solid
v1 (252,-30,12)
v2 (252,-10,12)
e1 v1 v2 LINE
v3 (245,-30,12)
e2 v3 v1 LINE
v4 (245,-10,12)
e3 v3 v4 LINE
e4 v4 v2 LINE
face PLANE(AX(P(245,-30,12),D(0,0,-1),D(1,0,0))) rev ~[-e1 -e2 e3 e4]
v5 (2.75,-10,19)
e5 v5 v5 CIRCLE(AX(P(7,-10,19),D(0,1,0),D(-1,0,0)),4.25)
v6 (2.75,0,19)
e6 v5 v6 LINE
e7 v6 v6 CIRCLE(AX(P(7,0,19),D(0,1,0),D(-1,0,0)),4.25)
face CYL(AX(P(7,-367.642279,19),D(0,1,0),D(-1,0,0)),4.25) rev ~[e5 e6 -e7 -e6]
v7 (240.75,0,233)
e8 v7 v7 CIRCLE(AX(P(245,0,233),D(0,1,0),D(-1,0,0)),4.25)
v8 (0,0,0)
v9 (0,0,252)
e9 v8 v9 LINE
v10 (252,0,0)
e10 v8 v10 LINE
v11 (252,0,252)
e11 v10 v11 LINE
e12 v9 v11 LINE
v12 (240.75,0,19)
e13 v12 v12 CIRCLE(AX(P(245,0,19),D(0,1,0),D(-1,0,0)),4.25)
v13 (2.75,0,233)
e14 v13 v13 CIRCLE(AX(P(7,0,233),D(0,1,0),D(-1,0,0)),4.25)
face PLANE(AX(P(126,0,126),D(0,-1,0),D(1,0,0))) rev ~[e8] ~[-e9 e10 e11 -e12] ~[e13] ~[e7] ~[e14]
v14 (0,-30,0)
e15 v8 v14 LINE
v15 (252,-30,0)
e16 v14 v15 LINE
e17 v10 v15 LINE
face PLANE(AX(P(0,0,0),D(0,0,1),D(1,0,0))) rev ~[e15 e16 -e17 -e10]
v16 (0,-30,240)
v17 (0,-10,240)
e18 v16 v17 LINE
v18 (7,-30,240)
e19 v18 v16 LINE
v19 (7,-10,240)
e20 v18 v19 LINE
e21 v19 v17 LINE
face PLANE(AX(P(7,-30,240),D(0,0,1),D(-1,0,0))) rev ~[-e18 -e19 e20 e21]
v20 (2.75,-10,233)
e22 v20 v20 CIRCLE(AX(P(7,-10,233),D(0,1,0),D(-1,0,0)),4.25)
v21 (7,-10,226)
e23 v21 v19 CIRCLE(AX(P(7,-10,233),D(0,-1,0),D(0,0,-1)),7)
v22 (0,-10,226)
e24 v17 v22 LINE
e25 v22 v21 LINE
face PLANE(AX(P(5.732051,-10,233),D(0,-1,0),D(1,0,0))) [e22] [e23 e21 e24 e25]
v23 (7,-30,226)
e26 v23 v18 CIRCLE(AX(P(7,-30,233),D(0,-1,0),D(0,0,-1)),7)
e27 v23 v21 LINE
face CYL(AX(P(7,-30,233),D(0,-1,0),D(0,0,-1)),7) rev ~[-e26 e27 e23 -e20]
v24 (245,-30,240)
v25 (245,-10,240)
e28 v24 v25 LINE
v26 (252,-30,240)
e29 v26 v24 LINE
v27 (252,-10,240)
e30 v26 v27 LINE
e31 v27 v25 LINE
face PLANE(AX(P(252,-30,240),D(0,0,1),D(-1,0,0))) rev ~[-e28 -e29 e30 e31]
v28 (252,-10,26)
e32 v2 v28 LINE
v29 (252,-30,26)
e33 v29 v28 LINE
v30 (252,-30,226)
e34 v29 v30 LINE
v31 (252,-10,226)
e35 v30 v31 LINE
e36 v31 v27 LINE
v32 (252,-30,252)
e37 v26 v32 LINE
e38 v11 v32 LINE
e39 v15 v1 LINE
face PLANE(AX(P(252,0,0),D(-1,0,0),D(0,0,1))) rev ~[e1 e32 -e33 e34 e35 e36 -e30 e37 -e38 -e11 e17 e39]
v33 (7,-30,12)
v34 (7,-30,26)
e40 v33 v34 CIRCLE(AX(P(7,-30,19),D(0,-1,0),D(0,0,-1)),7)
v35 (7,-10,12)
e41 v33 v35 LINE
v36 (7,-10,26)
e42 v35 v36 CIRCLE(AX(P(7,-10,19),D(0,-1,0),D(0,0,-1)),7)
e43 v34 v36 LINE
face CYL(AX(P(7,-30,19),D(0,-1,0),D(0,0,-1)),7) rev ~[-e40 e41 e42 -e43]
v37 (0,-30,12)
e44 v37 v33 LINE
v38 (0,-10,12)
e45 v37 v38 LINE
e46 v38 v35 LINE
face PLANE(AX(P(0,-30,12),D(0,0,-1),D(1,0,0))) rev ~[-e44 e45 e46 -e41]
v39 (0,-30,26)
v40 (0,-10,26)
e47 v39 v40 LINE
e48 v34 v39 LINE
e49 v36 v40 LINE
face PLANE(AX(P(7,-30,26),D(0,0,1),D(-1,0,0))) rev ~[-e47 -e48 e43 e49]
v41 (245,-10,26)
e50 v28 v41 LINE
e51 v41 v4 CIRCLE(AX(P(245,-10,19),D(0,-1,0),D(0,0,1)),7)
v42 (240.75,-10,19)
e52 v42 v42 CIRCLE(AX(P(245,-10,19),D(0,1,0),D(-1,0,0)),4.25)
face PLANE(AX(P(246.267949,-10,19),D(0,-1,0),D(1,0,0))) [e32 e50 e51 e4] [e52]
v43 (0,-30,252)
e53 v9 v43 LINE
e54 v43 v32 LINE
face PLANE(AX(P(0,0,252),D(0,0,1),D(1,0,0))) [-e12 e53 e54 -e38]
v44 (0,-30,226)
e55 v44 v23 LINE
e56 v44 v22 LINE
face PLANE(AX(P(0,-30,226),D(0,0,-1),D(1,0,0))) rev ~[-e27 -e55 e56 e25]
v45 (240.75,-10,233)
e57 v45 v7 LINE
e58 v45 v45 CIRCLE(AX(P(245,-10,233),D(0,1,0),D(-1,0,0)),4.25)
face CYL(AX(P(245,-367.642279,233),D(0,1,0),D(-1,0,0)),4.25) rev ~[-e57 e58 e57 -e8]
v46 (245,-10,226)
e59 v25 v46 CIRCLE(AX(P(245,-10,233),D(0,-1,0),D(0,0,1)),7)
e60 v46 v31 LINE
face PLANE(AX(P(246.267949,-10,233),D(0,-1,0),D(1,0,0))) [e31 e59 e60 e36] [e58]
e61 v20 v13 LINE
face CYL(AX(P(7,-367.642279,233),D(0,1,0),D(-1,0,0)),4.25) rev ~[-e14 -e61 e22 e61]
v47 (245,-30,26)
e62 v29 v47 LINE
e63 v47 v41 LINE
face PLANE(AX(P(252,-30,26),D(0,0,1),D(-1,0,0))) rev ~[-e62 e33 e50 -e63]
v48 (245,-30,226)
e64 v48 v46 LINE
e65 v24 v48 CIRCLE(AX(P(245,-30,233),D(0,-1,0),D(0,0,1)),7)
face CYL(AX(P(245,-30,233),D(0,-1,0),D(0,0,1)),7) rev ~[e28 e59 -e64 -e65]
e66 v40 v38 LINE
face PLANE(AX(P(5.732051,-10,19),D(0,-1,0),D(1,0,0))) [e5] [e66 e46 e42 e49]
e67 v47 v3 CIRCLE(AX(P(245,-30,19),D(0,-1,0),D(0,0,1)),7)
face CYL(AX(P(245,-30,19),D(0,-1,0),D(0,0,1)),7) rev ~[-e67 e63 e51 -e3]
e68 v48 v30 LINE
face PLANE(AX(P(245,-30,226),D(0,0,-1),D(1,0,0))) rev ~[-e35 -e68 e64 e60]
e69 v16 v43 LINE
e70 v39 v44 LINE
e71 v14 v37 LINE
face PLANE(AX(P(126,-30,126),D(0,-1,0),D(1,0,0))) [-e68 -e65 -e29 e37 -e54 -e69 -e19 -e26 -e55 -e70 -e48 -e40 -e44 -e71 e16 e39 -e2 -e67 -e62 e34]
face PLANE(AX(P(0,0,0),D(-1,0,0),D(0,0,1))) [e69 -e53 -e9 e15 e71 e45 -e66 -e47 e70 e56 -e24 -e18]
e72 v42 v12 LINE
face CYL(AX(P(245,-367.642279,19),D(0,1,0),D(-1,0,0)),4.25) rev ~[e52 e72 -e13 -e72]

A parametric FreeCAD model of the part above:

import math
import FreeCAD as App
import Part
import Sketcher
from FreeCAD import Vector

doc = App.newDocument("Part")
body = doc.addObject("PartDesign::Body", "Body")

# Sketch on XZ plane
sketch1 = doc.addObject("Sketcher::SketchObject", "Sketch")
body.addObject(sketch1)
sketch1.AttachmentSupport = (doc.XZ_Plane, [""])
sketch1.MapMode = "FlatFace"
sketch1.addGeometry(Part.LineSegment(Vector(0, 252, 0), Vector(0, 0, 0)), False)
sketch1.addGeometry(Part.LineSegment(Vector(0, 0, 0), Vector(252, 0, 0)), False)
sketch1.addGeometry(Part.LineSegment(Vector(252, 0, 0), Vector(252, 252, 0)), False)
sketch1.addGeometry(Part.LineSegment(Vector(252, 252, 0), Vector(0, 252, 0)), False)
sketch1.addConstraint(Sketcher.Constraint("Coincident", 0, 2, 1, 1))
sketch1.addConstraint(Sketcher.Constraint("Coincident", 1, 2, 2, 1))
sketch1.addConstraint(Sketcher.Constraint("Coincident", 2, 2, 3, 1))
sketch1.addConstraint(Sketcher.Constraint("Coincident", 3, 2, 0, 1))
sketch1.addConstraint(Sketcher.Constraint("Vertical", 0))
sketch1.addConstraint(Sketcher.Constraint("Horizontal", 1))
sketch1.addConstraint(Sketcher.Constraint("Vertical", 2))
sketch1.addConstraint(Sketcher.Constraint("Horizontal", 3))
sketch1.addConstraint(Sketcher.Constraint("Coincident", 0, 2, -1, 1))
sketch1.addConstraint(Sketcher.Constraint("Equal", 3, 0))
sketch1.addConstraint(Sketcher.Constraint("DistanceX", 1, 1, 1, 2, 252.0))
pad1 = doc.addObject("PartDesign::Pad", "Pad")
body.addObject(pad1)
pad1.Profile = sketch1
pad1.Length = 30

# Sketch on XZ plane
sketch2 = doc.addObject("Sketcher::SketchObject", "Sketch001")
body.addObject(sketch2)
sketch2.AttachmentSupport = (doc.XZ_Plane, [""])
sketch2.MapMode = "FlatFace"
sketch2.AttachmentOffset = App.Placement(Vector(0, 0, 30), App.Rotation())
sketch2.addGeometry(Part.LineSegment(Vector(7, 26, 0), Vector(0, 26, 0)), False)
sketch2.addGeometry(Part.LineSegment(Vector(0, 26, 0), Vector(0, 12, 0)), False)
sketch2.addGeometry(Part.LineSegment(Vector(0, 12, 0), Vector(7, 12, 0)), False)
sketch2.addGeometry(Part.ArcOfCircle(Part.Circle(Vector(7, 19, 0), Vector(0, 0, 1), 7), math.radians(-90), math.radians(90)), False)
sketch2.addGeometry(Part.LineSegment(Vector(245, 12, 0), Vector(252, 12, 0)), False)
sketch2.addGeometry(Part.LineSegment(Vector(252, 12, 0), Vector(252, 26, 0)), False)
sketch2.addGeometry(Part.LineSegment(Vector(252, 26, 0), Vector(245, 26, 0)), False)
sketch2.addGeometry(Part.ArcOfCircle(Part.Circle(Vector(245, 19, 0), Vector(0, 0, 1), 7), math.radians(90), math.radians(270)), False)
sketch2.addGeometry(Part.LineSegment(Vector(252, 226, 0), Vector(252, 240, 0)), False)
sketch2.addGeometry(Part.LineSegment(Vector(252, 240, 0), Vector(245, 240, 0)), False)
sketch2.addGeometry(Part.ArcOfCircle(Part.Circle(Vector(245, 233, 0), Vector(0, 0, 1), 7), math.radians(90), math.radians(270)), False)
sketch2.addGeometry(Part.LineSegment(Vector(245, 226, 0), Vector(252, 226, 0)), False)
sketch2.addGeometry(Part.LineSegment(Vector(0, 226, 0), Vector(7, 226, 0)), False)
sketch2.addGeometry(Part.ArcOfCircle(Part.Circle(Vector(7, 233, 0), Vector(0, 0, 1), 7), math.radians(-90), math.radians(90)), False)
sketch2.addGeometry(Part.LineSegment(Vector(7, 240, 0), Vector(0, 240, 0)), False)
sketch2.addGeometry(Part.LineSegment(Vector(0, 240, 0), Vector(0, 226, 0)), False)
sketch2.addConstraint(Sketcher.Constraint("Coincident", 0, 2, 1, 1))
sketch2.addConstraint(Sketcher.Constraint("Coincident", 1, 2, 2, 1))
sketch2.addConstraint(Sketcher.Constraint("Tangent", 2, 2, 3, 1))
sketch2.addConstraint(Sketcher.Constraint("Tangent", 3, 2, 0, 1))
sketch2.addConstraint(Sketcher.Constraint("Coincident", 4, 2, 5, 1))
sketch2.addConstraint(Sketcher.Constraint("Coincident", 5, 2, 6, 1))
sketch2.addConstraint(Sketcher.Constraint("Tangent", 6, 2, 7, 1))
sketch2.addConstraint(Sketcher.Constraint("Tangent", 7, 2, 4, 1))
sketch2.addConstraint(Sketcher.Constraint("Coincident", 8, 2, 9, 1))
sketch2.addConstraint(Sketcher.Constraint("Tangent", 9, 2, 10, 1))
sketch2.addConstraint(Sketcher.Constraint("Tangent", 10, 2, 11, 1))
sketch2.addConstraint(Sketcher.Constraint("Coincident", 11, 2, 8, 1))
sketch2.addConstraint(Sketcher.Constraint("Tangent", 12, 2, 13, 1))
sketch2.addConstraint(Sketcher.Constraint("Tangent", 13, 2, 14, 1))
sketch2.addConstraint(Sketcher.Constraint("Coincident", 14, 2, 15, 1))
sketch2.addConstraint(Sketcher.Constraint("Coincident", 15, 2, 12, 1))
sketch2.addConstraint(Sketcher.Constraint("Horizontal", 0))
sketch2.addConstraint(Sketcher.Constraint("Vertical", 1))
sketch2.addConstraint(Sketcher.Constraint("Horizontal", 2))
sketch2.addConstraint(Sketcher.Constraint("Horizontal", 4))
sketch2.addConstraint(Sketcher.Constraint("Vertical", 5))
sketch2.addConstraint(Sketcher.Constraint("Horizontal", 6))
sketch2.addConstraint(Sketcher.Constraint("Vertical", 8))
sketch2.addConstraint(Sketcher.Constraint("Horizontal", 9))
sketch2.addConstraint(Sketcher.Constraint("Horizontal", 11))
sketch2.addConstraint(Sketcher.Constraint("Horizontal", 12))
sketch2.addConstraint(Sketcher.Constraint("Horizontal", 14))
sketch2.addConstraint(Sketcher.Constraint("Vertical", 15))
sketch2.addConstraint(Sketcher.Constraint("Equal", 3, 7))
sketch2.addConstraint(Sketcher.Constraint("Equal", 7, 10))
sketch2.addConstraint(Sketcher.Constraint("Equal", 10, 13))
sketch2.addConstraint(Sketcher.Constraint("PointOnObject", 0, 2, -2))
sketch2.addConstraint(Sketcher.Constraint("PointOnObject", 14, 2, -2))
sketch2.addConstraint(Sketcher.Constraint("Horizontal", 3, 3, 7, 3))
sketch2.addConstraint(Sketcher.Constraint("Horizontal", 10, 3, 13, 3))
sketch2.addConstraint(Sketcher.Constraint("Vertical", 7, 3, 10, 3))
sketch2.addConstraint(Sketcher.Constraint("Vertical", 3, 3, 13, 3))
sketch2.addConstraint(Sketcher.Constraint("Vertical", 5, 2, 8, 2))
sketch2.addConstraint(Sketcher.Constraint("Equal", 2, 4))
sketch2.addConstraint(Sketcher.Constraint("Radius", 3, 7.0))
sketch2.addConstraint(Sketcher.Constraint("DistanceX", 0, 2, 0, 1, 7.0))
sketch2.addConstraint(Sketcher.Constraint("DistanceY", -1, 1, 3, 3, 19.0))
sketch2.addConstraint(Sketcher.Constraint("DistanceX", -1, 1, 7, 3, 245.0))
sketch2.addConstraint(Sketcher.Constraint("DistanceY", -1, 1, 10, 3, 233.0))
pocket1 = doc.addObject("PartDesign::Pocket", "Pocket")
body.addObject(pocket1)
pocket1.Profile = sketch2
pocket1.Length = 20

# Sketch on XZ plane
sketch3 = doc.addObject("Sketcher::SketchObject", "Sketch002")
body.addObject(sketch3)
sketch3.AttachmentSupport = (doc.XZ_Plane, [""])
sketch3.MapMode = "FlatFace"
sketch3.AttachmentOffset = App.Placement(Vector(0, 0, 10), App.Rotation())
sketch3.addGeometry(Part.Circle(Vector(7, 233, 0), Vector(0, 0, 1), 4.2), False)
sketch3.addGeometry(Part.Circle(Vector(245, 233, 0), Vector(0, 0, 1), 4.2), False)
sketch3.addGeometry(Part.Circle(Vector(245, 19, 0), Vector(0, 0, 1), 4.2), False)
sketch3.addGeometry(Part.Circle(Vector(7, 19, 0), Vector(0, 0, 1), 4.2), False)
sketch3.addConstraint(Sketcher.Constraint("Equal", 0, 1))
sketch3.addConstraint(Sketcher.Constraint("Equal", 1, 2))
sketch3.addConstraint(Sketcher.Constraint("Equal", 2, 3))
sketch3.addConstraint(Sketcher.Constraint("Horizontal", 0, 3, 1, 3))
sketch3.addConstraint(Sketcher.Constraint("Horizontal", 2, 3, 3, 3))
sketch3.addConstraint(Sketcher.Constraint("Vertical", 1, 3, 2, 3))
sketch3.addConstraint(Sketcher.Constraint("Vertical", 0, 3, 3, 3))
sketch3.addConstraint(Sketcher.Constraint("Diameter", 0, 8.5))
sketch3.addConstraint(Sketcher.Constraint("DistanceX", -1, 1, 0, 3, 7.0))
sketch3.addConstraint(Sketcher.Constraint("DistanceY", -1, 1, 0, 3, 233.0))
sketch3.addConstraint(Sketcher.Constraint("DistanceX", -1, 1, 1, 3, 245.0))
sketch3.addConstraint(Sketcher.Constraint("DistanceY", -1, 1, 2, 3, 19.0))
doc.recompute()
hole = doc.addObject("PartDesign::Hole", "Hole")
body.addObject(hole)
hole.Profile = sketch3
hole.ThreadType = "None"
hole.Diameter = 8.5
hole.DepthType = "ThroughAll"

doc.recompute()
